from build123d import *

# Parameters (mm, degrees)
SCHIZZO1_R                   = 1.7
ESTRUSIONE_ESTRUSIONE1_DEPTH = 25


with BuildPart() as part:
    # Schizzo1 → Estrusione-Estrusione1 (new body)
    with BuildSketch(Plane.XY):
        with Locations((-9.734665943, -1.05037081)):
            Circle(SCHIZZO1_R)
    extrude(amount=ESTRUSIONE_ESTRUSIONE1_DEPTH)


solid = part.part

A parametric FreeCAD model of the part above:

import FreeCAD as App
import Part
import Sketcher
from FreeCAD import Vector
Q = App.Units.Quantity

doc = App.newDocument("Part")
body = doc.addObject("PartDesign::Body", "Body")

# Sketch on XY plane
sketch1 = body.newObject("Sketcher::SketchObject", "Sketch")
sketch1.AttachmentSupport = (doc.getObject("XY_Plane"), [""])
sketch1.MapMode = "FlatFace"
sketch1.addGeometry(Part.Circle(Vector(-9.734666, -1.050371, 0), Vector(0, 0, 1), 1.7), False)
sketch1.addConstraint([
    Sketcher.Constraint("Diameter", 0, Q("3.4 mm")),
    Sketcher.Constraint("DistanceY", 0, 3, -1, 1, Q("1.050371 mm")),
    Sketcher.Constraint("DistanceX", 0, 3, -1, 1, Q("9.734666 mm")),
])
pad1 = body.newObject("PartDesign::Pad", "Pad")
pad1.Profile = sketch1
pad1.Length = 25

doc.recompute()
